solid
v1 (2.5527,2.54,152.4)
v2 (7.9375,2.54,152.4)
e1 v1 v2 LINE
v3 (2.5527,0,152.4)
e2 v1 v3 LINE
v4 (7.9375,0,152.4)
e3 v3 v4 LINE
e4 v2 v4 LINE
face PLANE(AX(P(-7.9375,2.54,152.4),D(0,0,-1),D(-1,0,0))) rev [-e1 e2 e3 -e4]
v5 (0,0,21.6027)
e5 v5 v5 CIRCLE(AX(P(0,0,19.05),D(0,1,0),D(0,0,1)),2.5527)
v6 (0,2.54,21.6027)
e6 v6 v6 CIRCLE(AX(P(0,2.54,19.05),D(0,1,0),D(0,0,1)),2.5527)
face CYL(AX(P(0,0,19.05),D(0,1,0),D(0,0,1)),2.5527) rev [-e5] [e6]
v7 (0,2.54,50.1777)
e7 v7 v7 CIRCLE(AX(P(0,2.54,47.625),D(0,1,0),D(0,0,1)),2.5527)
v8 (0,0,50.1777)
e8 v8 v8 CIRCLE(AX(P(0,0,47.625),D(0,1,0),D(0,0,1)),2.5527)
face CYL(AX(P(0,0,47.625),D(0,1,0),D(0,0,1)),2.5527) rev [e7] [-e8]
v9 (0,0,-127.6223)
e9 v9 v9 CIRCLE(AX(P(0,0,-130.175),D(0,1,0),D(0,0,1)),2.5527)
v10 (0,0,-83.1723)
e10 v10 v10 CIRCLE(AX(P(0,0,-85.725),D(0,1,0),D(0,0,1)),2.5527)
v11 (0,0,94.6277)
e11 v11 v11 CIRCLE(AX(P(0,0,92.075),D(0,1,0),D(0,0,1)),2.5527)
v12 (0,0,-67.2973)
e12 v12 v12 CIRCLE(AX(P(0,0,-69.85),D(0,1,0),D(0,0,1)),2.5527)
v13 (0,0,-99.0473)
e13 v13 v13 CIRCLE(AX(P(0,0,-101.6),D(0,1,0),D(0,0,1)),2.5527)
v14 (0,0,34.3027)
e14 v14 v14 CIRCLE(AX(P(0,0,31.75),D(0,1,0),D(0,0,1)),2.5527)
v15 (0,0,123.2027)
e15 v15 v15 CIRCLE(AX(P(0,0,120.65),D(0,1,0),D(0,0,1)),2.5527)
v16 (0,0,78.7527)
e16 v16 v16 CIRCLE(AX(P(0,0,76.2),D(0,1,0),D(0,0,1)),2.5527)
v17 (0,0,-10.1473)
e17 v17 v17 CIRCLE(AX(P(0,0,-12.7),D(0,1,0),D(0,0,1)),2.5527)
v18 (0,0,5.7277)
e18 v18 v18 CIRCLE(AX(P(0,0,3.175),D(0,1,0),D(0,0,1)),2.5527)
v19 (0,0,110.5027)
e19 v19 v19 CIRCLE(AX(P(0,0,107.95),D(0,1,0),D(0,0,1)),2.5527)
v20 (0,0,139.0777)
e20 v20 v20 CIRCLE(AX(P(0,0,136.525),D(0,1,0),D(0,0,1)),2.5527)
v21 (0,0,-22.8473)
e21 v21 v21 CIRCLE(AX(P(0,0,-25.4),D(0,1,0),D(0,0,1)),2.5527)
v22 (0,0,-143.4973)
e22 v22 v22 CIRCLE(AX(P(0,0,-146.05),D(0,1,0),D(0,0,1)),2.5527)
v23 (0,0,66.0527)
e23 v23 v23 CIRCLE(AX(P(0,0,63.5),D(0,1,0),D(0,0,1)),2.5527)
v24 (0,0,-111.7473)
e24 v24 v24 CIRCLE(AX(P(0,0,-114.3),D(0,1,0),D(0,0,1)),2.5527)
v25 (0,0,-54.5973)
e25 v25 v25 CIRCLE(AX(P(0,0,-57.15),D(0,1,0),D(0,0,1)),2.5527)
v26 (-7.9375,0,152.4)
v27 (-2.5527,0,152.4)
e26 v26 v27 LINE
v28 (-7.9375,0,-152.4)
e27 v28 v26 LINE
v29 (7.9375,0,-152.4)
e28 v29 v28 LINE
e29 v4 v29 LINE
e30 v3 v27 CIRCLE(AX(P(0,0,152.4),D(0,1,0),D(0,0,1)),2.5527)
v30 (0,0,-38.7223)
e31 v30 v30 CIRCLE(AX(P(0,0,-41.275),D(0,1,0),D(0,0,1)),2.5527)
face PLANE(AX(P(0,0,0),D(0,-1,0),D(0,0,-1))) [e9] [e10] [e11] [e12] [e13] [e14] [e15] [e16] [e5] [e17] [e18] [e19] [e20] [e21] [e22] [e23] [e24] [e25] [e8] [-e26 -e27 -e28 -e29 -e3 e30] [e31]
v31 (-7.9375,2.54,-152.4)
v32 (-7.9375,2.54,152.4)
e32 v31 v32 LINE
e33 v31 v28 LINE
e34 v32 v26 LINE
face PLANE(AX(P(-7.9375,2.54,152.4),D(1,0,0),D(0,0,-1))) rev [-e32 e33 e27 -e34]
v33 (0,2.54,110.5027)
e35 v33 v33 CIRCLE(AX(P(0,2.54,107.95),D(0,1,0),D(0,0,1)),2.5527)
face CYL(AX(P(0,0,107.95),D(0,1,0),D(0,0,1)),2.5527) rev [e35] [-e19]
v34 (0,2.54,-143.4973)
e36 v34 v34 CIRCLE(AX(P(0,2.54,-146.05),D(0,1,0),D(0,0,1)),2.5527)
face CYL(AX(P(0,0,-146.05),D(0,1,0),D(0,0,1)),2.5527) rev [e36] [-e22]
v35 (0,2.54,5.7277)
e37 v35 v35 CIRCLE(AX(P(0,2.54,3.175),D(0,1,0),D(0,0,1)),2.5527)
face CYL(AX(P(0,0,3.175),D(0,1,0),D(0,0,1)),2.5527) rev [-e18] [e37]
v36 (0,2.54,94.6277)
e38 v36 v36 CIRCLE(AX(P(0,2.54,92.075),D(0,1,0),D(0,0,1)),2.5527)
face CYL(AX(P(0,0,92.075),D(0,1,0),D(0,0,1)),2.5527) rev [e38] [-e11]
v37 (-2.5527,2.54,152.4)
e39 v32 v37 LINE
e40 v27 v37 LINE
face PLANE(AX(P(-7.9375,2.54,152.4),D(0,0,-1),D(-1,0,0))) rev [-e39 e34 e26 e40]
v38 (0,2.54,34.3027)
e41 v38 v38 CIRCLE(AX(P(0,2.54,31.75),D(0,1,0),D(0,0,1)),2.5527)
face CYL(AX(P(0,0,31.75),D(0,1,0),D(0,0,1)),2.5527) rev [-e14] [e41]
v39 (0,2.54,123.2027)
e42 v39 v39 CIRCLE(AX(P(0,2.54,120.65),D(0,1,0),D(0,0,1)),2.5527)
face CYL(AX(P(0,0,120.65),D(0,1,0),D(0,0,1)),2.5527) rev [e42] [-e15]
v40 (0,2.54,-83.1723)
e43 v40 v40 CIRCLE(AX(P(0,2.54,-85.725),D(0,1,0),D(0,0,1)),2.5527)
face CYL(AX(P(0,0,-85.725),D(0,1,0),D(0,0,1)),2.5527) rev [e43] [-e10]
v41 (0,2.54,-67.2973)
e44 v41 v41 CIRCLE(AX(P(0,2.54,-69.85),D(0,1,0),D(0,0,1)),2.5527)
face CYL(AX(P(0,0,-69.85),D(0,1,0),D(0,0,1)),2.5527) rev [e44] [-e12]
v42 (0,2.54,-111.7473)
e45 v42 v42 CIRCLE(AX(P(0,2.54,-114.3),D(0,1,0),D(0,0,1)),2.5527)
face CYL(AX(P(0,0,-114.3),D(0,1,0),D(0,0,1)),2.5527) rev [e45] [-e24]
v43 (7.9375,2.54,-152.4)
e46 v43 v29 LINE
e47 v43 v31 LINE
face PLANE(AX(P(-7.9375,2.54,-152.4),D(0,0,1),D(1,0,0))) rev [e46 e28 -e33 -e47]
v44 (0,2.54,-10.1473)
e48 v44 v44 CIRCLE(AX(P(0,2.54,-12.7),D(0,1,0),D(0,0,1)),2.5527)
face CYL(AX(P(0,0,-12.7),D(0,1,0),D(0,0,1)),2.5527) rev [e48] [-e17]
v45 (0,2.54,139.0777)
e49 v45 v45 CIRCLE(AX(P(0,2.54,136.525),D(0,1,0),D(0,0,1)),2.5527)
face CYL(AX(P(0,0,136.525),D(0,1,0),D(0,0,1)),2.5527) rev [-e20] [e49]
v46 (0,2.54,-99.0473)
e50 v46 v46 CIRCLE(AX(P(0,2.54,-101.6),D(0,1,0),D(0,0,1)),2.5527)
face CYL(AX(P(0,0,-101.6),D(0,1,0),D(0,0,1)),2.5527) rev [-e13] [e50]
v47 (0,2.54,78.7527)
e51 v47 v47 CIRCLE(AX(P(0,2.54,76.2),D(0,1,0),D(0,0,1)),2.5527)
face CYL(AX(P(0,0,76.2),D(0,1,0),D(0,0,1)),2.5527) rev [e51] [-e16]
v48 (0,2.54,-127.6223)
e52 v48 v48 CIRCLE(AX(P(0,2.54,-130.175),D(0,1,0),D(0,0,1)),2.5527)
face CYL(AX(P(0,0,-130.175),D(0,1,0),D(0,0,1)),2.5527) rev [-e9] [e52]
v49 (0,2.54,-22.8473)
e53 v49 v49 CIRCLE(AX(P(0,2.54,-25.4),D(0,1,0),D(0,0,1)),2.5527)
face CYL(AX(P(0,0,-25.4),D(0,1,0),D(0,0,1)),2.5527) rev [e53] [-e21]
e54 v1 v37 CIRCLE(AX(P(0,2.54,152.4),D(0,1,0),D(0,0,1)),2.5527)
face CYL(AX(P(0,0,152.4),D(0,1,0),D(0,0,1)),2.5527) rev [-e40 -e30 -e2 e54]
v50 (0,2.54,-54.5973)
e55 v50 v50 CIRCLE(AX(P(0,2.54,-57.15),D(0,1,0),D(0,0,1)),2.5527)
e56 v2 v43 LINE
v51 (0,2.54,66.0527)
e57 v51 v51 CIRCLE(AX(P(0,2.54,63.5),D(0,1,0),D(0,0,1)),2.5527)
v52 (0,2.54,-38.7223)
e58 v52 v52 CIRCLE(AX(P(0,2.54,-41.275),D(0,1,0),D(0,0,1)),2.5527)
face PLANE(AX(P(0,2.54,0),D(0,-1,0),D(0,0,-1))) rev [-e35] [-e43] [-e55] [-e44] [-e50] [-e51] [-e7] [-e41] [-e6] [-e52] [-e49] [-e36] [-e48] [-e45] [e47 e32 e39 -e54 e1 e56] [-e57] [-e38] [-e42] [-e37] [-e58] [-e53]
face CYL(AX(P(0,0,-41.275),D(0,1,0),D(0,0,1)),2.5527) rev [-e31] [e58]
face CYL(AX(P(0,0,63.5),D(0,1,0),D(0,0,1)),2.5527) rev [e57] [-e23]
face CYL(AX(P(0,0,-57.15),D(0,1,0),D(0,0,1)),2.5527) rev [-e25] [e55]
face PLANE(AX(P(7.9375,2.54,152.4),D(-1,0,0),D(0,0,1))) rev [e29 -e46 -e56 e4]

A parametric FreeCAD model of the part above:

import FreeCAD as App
import Part
import Sketcher
from FreeCAD import Vector
Q = App.Units.Quantity


def add_polygon(sketch, points):
    """Adds a closed chain of lines whose ends are joined by coincident constraints."""
    first, n = sketch.GeometryCount, len(points)
    for a, b in zip(points, points[1:] + points[:1]):
        sketch.addGeometry(Part.LineSegment(App.Vector(*a, 0), App.Vector(*b, 0)), False)
    for i in range(n):
        sketch.addConstraint(Sketcher.Constraint("Coincident", first + i, 2, first + (i + 1) % n, 1))

doc = App.newDocument("Part")
body = doc.addObject("PartDesign::Body", "Body")

# Sketch on XZ plane
sketch1 = body.newObject("Sketcher::SketchObject", "Sketch")
sketch1.AttachmentSupport = (doc.getObject("XZ_Plane"), [""])
sketch1.MapMode = "FlatFace"
add_polygon(sketch1, [(-8, -152), (-8, 152), (8, 152), (8, -152)])  # lines 0-3
sketch1.addConstraint([
    Sketcher.Constraint("Vertical", 0),
    Sketcher.Constraint("Horizontal", 1),
    Sketcher.Constraint("Vertical", 2),
    Sketcher.Constraint("Horizontal", 3),
    Sketcher.Constraint("Symmetric", 0, 2, 2, 2, -1, 1),
    Sketcher.Constraint("DistanceY", 0, 1, 0, 2, Q("12 in")),
    Sketcher.Constraint("DistanceX", 1, 1, 1, 2, Q("0.625 in")),
])
pad1 = body.newObject("PartDesign::Pad", "Pad")
pad1.Profile = sketch1
pad1.Length = Q("0.1 in")
pad1.Reversed = True

# Sketch on XZ plane
sketch2 = body.newObject("Sketcher::SketchObject", "Sketch001")
sketch2.AttachmentSupport = (doc.getObject("XZ_Plane"), [""])
sketch2.MapMode = "FlatFace"
sketch2.AttachmentOffset = App.Placement(Vector(0, 0, -0.1 * 25.4), App.Rotation())
sketch2.addGeometry(Part.Circle(Vector(0, -146.1, 0), Vector(0, 0, 1), 2.6), False)
sketch2.addConstraint([
    Sketcher.Constraint("PointOnObject", 0, 3, -2),
    Sketcher.Constraint("Diameter", 0, Q("0.201 in")),
    Sketcher.Constraint("DistanceY", 0, 3, -1, 1, Q("5.75 in")),
])
pocket1 = body.newObject("PartDesign::Pocket", "Pocket")
pocket1.Profile = sketch2
pocket1.Length = Q("0.1 in")
pocket1.Reversed = True
doc.recompute()

linearpattern = body.newObject("PartDesign::LinearPattern", "LinearPattern")
linearpattern.Originals = [pocket1]
linearpattern.Direction = (doc.getObject("Z_Axis"), [""])
linearpattern.Mode = "offset"
linearpattern.Offset = Q("0.625 in")
linearpattern.Occurrences = 3
body.Tip = linearpattern
doc.recompute()

linearpattern2 = body.newObject("PartDesign::LinearPattern", "LinearPattern001")
linearpattern2.Originals = [pocket1]
linearpattern2.Direction = (doc.getObject("Z_Axis"), [""])
linearpattern2.Mode = "offset"
linearpattern2.Offset = Q("1.75 in")
linearpattern2.Occurrences = 7
body.Tip = linearpattern2

# Sketch on XZ plane
sketch3 = body.newObject("Sketcher::SketchObject", "Sketch002")
sketch3.AttachmentSupport = (doc.getObject("XZ_Plane"), [""])
sketch3.MapMode = "FlatFace"
sketch3.AttachmentOffset = App.Placement(Vector(0, 0, -0.1 * 25.4), App.Rotation())
sketch3.addGeometry(Part.Circle(Vector(0, -85.7, 0), Vector(0, 0, 1), 2.6), False)
sketch3.addConstraint([
    Sketcher.Constraint("PointOnObject", 0, 3, -2),
    Sketcher.Constraint("Diameter", 0, Q("0.201 in")),
    Sketcher.Constraint("DistanceY", 0, 3, -1, 1, Q("3.375 in")),
])
pocket2 = body.newObject("PartDesign::Pocket", "Pocket001")
pocket2.Profile = sketch3
pocket2.Length = Q("0.1 in")
pocket2.Reversed = True

# Sketch on XZ plane
sketch4 = body.newObject("Sketcher::SketchObject", "Sketch003")
sketch4.AttachmentSupport = (doc.getObject("XZ_Plane"), [""])
sketch4.MapMode = "FlatFace"
sketch4.AttachmentOffset = App.Placement(Vector(0, 0, -0.1 * 25.4), App.Rotation())
sketch4.addGeometry(Part.Circle(Vector(0, -41.3, 0), Vector(0, 0, 1), 2.6), False)
sketch4.addConstraint([
    Sketcher.Constraint("PointOnObject", 0, 3, -2),
    Sketcher.Constraint("Diameter", 0, Q("0.201 in")),
    Sketcher.Constraint("DistanceY", 0, 3, -1, 1, Q("1.625 in")),
])
pocket3 = body.newObject("PartDesign::Pocket", "Pocket002")
pocket3.Profile = sketch4
pocket3.Length = Q("0.1 in")
pocket3.Reversed = True

# Sketch on XZ plane
sketch5 = body.newObject("Sketcher::SketchObject", "Sketch004")
sketch5.AttachmentSupport = (doc.getObject("XZ_Plane"), [""])
sketch5.MapMode = "FlatFace"
sketch5.AttachmentOffset = App.Placement(Vector(0, 0, -0.1 * 25.4), App.Rotation())
sketch5.addGeometry(Part.Circle(Vector(0, 3.2, 0), Vector(0, 0, 1), 2.6), False)
sketch5.addConstraint([
    Sketcher.Constraint("PointOnObject", 0, 3, -2),
    Sketcher.Constraint("Diameter", 0, Q("0.201 in")),
    Sketcher.Constraint("DistanceY", -1, 1, 0, 3, Q("0.125 in")),
])
pocket4 = body.newObject("PartDesign::Pocket", "Pocket003")
pocket4.Profile = sketch5
pocket4.Length = Q("0.1 in")
pocket4.Reversed = True

# Sketch on XZ plane
sketch6 = body.newObject("Sketcher::SketchObject", "Sketch005")
sketch6.AttachmentSupport = (doc.getObject("XZ_Plane"), [""])
sketch6.MapMode = "FlatFace"
sketch6.AttachmentOffset = App.Placement(Vector(0, 0, -0.1 * 25.4), App.Rotation())
sketch6.addGeometry(Part.Circle(Vector(0, 47.6, 0), Vector(0, 0, 1), 2.6), False)
sketch6.addConstraint([
    Sketcher.Constraint("PointOnObject", 0, 3, -2),
    Sketcher.Constraint("Diameter", 0, Q("0.201 in")),
    Sketcher.Constraint("DistanceY", -1, 1, 0, 3, Q("1.875 in")),
])
pocket5 = body.newObject("PartDesign::Pocket", "Pocket004")
pocket5.Profile = sketch6
pocket5.Length = Q("0.1 in")
pocket5.Reversed = True

# Sketch on XZ plane
sketch7 = body.newObject("Sketcher::SketchObject", "Sketch006")
sketch7.AttachmentSupport = (doc.getObject("XZ_Plane"), [""])
sketch7.MapMode = "FlatFace"
sketch7.AttachmentOffset = App.Placement(Vector(0, 0, -0.1 * 25.4), App.Rotation())
sketch7.addGeometry(Part.Circle(Vector(0, 92.1, 0), Vector(0, 0, 1), 2.6), False)
sketch7.addConstraint([
    Sketcher.Constraint("PointOnObject", 0, 3, -2),
    Sketcher.Constraint("Diameter", 0, Q("0.201 in")),
    Sketcher.Constraint("DistanceY", -1, 1, 0, 3, Q("3.625 in")),
])
pocket6 = body.newObject("PartDesign::Pocket", "Pocket005")
pocket6.Profile = sketch7
pocket6.Length = Q("0.1 in")
pocket6.Reversed = True

# Sketch on XZ plane
sketch8 = body.newObject("Sketcher::SketchObject", "Sketch007")
sketch8.AttachmentSupport = (doc.getObject("XZ_Plane"), [""])
sketch8.MapMode = "FlatFace"
sketch8.AttachmentOffset = App.Placement(Vector(0, 0, -0.1 * 25.4), App.Rotation())
sketch8.addGeometry(Part.Circle(Vector(0, 136.5, 0), Vector(0, 0, 1), 2.6), False)
sketch8.addConstraint([
    Sketcher.Constraint("PointOnObject", 0, 3, -2),
    Sketcher.Constraint("Diameter", 0, Q("0.201 in")),
    Sketcher.Constraint("DistanceY", -1, 1, 0, 3, Q("5.375 in")),
])
pocket7 = body.newObject("PartDesign::Pocket", "Pocket006")
pocket7.Profile = sketch8
pocket7.Length = Q("0.1 in")
pocket7.Reversed = True

# Sketch on XZ plane
sketch9 = body.newObject("Sketcher::SketchObject", "Sketch008")
sketch9.AttachmentSupport = (doc.getObject("XZ_Plane"), [""])
sketch9.MapMode = "FlatFace"
sketch9.AttachmentOffset = App.Placement(Vector(0, 0, -0.1 * 25.4), App.Rotation())
sketch9.addGeometry(Part.Circle(Vector(0, -69.8, 0), Vector(0, 0, 1), 2.6), False)
sketch9.addConstraint([
    Sketcher.Constraint("PointOnObject", 0, 3, -2),
    Sketcher.Constraint("Diameter", 0, Q("0.201 in")),
    Sketcher.Constraint("DistanceY", 0, 3, -1, 1, Q("2.75 in")),
])
pocket8 = body.newObject("PartDesign::Pocket", "Pocket007")
pocket8.Profile = sketch9
pocket8.Length = Q("0.1 in")
pocket8.Reversed = True

# Sketch on XZ plane
sketch10 = body.newObject("Sketcher::SketchObject", "Sketch009")
sketch10.AttachmentSupport = (doc.getObject("XZ_Plane"), [""])
sketch10.MapMode = "FlatFace"
sketch10.AttachmentOffset = App.Placement(Vector(0, 0, -0.1 * 25.4), App.Rotation())
sketch10.addGeometry(Part.Circle(Vector(0, -25.4, 0), Vector(0, 0, 1), 2.6), False)
sketch10.addConstraint([
    Sketcher.Constraint("PointOnObject", 0, 3, -2),
    Sketcher.Constraint("Diameter", 0, Q("0.201 in")),
    Sketcher.Constraint("DistanceY", 0, 3, -1, 1, Q("1 in")),
])
pocket9 = body.newObject("PartDesign::Pocket", "Pocket008")
pocket9.Profile = sketch10
pocket9.Length = Q("0.1 in")
pocket9.Reversed = True

# Sketch on XZ plane
sketch11 = body.newObject("Sketcher::SketchObject", "Sketch010")
sketch11.AttachmentSupport = (doc.getObject("XZ_Plane"), [""])
sketch11.MapMode = "FlatFace"
sketch11.AttachmentOffset = App.Placement(Vector(0, 0, -0.1 * 25.4), App.Rotation())
sketch11.addGeometry(Part.Circle(Vector(0, 19.1, 0), Vector(0, 0, 1), 2.6), False)
sketch11.addConstraint([
    Sketcher.Constraint("PointOnObject", 0, 3, -2),
    Sketcher.Constraint("Diameter", 0, Q("0.201 in")),
    Sketcher.Constraint("DistanceY", -1, 1, 0, 3, Q("0.75 in")),
])
pocket10 = body.newObject("PartDesign::Pocket", "Pocket009")
pocket10.Profile = sketch11
pocket10.Length = Q("0.1 in")
pocket10.Reversed = True

# Sketch on XZ plane
sketch12 = body.newObject("Sketcher::SketchObject", "Sketch011")
sketch12.AttachmentSupport = (doc.getObject("XZ_Plane"), [""])
sketch12.MapMode = "FlatFace"
sketch12.AttachmentOffset = App.Placement(Vector(0, 0, -0.1 * 25.4), App.Rotation())
sketch12.addGeometry(Part.Circle(Vector(0, 63.5, 0), Vector(0, 0, 1), 2.6), False)
sketch12.addConstraint([
    Sketcher.Constraint("PointOnObject", 0, 3, -2),
    Sketcher.Constraint("Diameter", 0, Q("0.201 in")),
    Sketcher.Constraint("DistanceY", -1, 1, 0, 3, Q("2.5 in")),
])
pocket11 = body.newObject("PartDesign::Pocket", "Pocket010")
pocket11.Profile = sketch12
pocket11.Length = Q("0.1 in")
pocket11.Reversed = True

# Sketch on XZ plane
sketch13 = body.newObject("Sketcher::SketchObject", "Sketch012")
sketch13.AttachmentSupport = (doc.getObject("XZ_Plane"), [""])
sketch13.MapMode = "FlatFace"
sketch13.AttachmentOffset = App.Placement(Vector(0, 0, -0.1 * 25.4), App.Rotation())
sketch13.addGeometry(Part.Circle(Vector(0, 108, 0), Vector(0, 0, 1), 2.6), False)
sketch13.addConstraint([
    Sketcher.Constraint("PointOnObject", 0, 3, -2),
    Sketcher.Constraint("Diameter", 0, Q("0.201 in")),
    Sketcher.Constraint("DistanceY", -1, 1, 0, 3, Q("4.25 in")),
])
pocket12 = body.newObject("PartDesign::Pocket", "Pocket011")
pocket12.Profile = sketch13
pocket12.Length = Q("0.1 in")
pocket12.Reversed = True

# Sketch on XZ plane
sketch14 = body.newObject("Sketcher::SketchObject", "Sketch013")
sketch14.AttachmentSupport = (doc.getObject("XZ_Plane"), [""])
sketch14.MapMode = "FlatFace"
sketch14.AttachmentOffset = App.Placement(Vector(0, 0, -0.1 * 25.4), App.Rotation())
sketch14.addGeometry(Part.Circle(Vector(0, 152.4, 0), Vector(0, 0, 1), 2.6), False)
sketch14.addConstraint([
    Sketcher.Constraint("PointOnObject", 0, 3, -2),
    Sketcher.Constraint("Diameter", 0, Q("0.201 in")),
    Sketcher.Constraint("DistanceY", -1, 1, 0, 3, Q("6 in")),
])
pocket13 = body.newObject("PartDesign::Pocket", "Pocket012")
pocket13.Profile = sketch14
pocket13.Length = Q("0.1 in")
pocket13.Reversed = True

doc.recompute()
